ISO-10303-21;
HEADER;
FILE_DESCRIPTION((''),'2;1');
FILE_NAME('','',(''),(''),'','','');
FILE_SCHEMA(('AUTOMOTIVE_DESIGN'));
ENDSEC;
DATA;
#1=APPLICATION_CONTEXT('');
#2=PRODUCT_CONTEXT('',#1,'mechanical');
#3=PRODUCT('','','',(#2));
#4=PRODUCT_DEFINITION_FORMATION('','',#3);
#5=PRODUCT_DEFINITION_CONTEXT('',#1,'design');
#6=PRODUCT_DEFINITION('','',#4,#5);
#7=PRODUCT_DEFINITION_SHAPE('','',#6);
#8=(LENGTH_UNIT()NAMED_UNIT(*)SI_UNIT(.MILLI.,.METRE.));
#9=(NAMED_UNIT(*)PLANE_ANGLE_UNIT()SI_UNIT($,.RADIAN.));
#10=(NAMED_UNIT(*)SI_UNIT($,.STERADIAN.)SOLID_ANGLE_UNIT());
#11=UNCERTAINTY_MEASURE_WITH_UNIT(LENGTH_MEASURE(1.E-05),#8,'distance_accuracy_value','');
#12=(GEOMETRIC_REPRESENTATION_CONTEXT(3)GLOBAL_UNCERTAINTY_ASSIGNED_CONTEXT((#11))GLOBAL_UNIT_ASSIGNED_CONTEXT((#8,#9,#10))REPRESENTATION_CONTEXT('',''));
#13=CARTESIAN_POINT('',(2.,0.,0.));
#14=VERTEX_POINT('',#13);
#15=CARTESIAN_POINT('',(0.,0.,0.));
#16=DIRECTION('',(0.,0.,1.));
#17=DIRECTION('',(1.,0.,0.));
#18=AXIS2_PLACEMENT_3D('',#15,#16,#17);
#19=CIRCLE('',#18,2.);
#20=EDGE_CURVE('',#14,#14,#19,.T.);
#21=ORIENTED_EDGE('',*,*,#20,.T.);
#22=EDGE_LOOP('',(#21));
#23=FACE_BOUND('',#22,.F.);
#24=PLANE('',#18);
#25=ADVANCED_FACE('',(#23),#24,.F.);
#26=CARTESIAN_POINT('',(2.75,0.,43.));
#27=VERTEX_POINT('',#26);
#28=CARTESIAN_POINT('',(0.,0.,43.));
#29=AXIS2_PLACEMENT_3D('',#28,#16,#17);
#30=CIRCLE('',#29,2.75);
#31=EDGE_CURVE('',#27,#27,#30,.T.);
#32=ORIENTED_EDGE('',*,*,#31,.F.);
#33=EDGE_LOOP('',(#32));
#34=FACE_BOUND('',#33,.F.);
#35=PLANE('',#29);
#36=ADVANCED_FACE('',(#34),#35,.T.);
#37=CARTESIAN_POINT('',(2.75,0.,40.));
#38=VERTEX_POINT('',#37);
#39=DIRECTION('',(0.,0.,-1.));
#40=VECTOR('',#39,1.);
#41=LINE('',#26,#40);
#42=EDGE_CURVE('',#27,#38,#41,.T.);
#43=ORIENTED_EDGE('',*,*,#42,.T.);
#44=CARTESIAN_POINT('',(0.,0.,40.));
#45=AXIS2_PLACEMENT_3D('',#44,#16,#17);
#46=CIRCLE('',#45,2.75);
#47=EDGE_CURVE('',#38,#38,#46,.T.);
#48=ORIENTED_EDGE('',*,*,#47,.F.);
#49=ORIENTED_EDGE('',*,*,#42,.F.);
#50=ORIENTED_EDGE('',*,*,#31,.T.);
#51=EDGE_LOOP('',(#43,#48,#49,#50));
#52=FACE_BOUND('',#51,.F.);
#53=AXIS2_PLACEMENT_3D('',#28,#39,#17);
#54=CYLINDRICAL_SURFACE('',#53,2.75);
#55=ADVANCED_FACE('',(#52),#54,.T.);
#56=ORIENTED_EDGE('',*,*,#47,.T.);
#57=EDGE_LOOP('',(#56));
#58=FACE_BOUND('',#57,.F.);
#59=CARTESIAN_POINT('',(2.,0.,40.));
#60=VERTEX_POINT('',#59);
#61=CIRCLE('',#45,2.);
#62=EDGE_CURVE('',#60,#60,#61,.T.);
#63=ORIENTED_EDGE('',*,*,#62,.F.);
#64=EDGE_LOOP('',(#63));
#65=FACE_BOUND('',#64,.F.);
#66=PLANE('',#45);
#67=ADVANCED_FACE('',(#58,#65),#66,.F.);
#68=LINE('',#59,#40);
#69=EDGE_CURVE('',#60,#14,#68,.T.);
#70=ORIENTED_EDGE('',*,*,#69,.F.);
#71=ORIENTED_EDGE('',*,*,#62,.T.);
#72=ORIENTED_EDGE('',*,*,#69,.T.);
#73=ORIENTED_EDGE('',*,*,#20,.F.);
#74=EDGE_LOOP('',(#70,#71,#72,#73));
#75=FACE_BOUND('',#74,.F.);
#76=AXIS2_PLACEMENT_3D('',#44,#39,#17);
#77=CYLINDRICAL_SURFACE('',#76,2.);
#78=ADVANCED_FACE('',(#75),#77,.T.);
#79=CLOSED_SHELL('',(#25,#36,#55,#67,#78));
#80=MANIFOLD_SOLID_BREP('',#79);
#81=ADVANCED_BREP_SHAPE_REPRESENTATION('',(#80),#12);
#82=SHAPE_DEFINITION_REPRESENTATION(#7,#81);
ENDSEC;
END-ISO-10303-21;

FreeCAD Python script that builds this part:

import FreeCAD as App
import Part
import Sketcher


def add_polygon(sketch, points):
    """Adds a closed chain of lines whose ends are joined by coincident constraints."""
    first, n = sketch.GeometryCount, len(points)
    for a, b in zip(points, points[1:] + points[:1]):
        sketch.addGeometry(Part.LineSegment(App.Vector(*a, 0), App.Vector(*b, 0)), False)
    for i in range(n):
        sketch.addConstraint(Sketcher.Constraint("Coincident", first + i, 2, first + (i + 1) % n, 1))

doc = App.newDocument("Part")
body = doc.addObject("PartDesign::Body", "Body")

# Sketch on XZ plane
sketch1 = doc.addObject("Sketcher::SketchObject", "Sketch")
body.addObject(sketch1)
sketch1.AttachmentSupport = (doc.XZ_Plane, [""])
sketch1.MapMode = "FlatFace"
add_polygon(sketch1, [(0, 43), (0, 0), (2, 0), (2, 40), (2.8, 40), (2.8, 43)])  # lines 0-5
sketch1.addConstraint(Sketcher.Constraint("Vertical", 0))
sketch1.addConstraint(Sketcher.Constraint("Horizontal", 1))
sketch1.addConstraint(Sketcher.Constraint("Vertical", 2))
sketch1.addConstraint(Sketcher.Constraint("Horizontal", 3))
sketch1.addConstraint(Sketcher.Constraint("Vertical", 4))
sketch1.addConstraint(Sketcher.Constraint("Horizontal", 5))
sketch1.addConstraint(Sketcher.Constraint("Coincident", 0, 2, -1, 1))
sketch1.addConstraint(Sketcher.Constraint("DistanceX", 1, 1, 1, 2, 2.0))
sketch1.addConstraint(Sketcher.Constraint("DistanceY", 0, 2, 0, 1, 43.0))
sketch1.addConstraint(Sketcher.Constraint("DistanceY", 2, 1, 2, 2, 40.0))
sketch1.addConstraint(Sketcher.Constraint("DistanceX", 3, 1, 3, 2, 0.75))
revolution = doc.addObject("PartDesign::Revolution", "Revolution")
body.addObject(revolution)
revolution.Profile = sketch1
revolution.ReferenceAxis = (sketch1, ["V_Axis"])
revolution.Angle = 360

doc.recompute()
